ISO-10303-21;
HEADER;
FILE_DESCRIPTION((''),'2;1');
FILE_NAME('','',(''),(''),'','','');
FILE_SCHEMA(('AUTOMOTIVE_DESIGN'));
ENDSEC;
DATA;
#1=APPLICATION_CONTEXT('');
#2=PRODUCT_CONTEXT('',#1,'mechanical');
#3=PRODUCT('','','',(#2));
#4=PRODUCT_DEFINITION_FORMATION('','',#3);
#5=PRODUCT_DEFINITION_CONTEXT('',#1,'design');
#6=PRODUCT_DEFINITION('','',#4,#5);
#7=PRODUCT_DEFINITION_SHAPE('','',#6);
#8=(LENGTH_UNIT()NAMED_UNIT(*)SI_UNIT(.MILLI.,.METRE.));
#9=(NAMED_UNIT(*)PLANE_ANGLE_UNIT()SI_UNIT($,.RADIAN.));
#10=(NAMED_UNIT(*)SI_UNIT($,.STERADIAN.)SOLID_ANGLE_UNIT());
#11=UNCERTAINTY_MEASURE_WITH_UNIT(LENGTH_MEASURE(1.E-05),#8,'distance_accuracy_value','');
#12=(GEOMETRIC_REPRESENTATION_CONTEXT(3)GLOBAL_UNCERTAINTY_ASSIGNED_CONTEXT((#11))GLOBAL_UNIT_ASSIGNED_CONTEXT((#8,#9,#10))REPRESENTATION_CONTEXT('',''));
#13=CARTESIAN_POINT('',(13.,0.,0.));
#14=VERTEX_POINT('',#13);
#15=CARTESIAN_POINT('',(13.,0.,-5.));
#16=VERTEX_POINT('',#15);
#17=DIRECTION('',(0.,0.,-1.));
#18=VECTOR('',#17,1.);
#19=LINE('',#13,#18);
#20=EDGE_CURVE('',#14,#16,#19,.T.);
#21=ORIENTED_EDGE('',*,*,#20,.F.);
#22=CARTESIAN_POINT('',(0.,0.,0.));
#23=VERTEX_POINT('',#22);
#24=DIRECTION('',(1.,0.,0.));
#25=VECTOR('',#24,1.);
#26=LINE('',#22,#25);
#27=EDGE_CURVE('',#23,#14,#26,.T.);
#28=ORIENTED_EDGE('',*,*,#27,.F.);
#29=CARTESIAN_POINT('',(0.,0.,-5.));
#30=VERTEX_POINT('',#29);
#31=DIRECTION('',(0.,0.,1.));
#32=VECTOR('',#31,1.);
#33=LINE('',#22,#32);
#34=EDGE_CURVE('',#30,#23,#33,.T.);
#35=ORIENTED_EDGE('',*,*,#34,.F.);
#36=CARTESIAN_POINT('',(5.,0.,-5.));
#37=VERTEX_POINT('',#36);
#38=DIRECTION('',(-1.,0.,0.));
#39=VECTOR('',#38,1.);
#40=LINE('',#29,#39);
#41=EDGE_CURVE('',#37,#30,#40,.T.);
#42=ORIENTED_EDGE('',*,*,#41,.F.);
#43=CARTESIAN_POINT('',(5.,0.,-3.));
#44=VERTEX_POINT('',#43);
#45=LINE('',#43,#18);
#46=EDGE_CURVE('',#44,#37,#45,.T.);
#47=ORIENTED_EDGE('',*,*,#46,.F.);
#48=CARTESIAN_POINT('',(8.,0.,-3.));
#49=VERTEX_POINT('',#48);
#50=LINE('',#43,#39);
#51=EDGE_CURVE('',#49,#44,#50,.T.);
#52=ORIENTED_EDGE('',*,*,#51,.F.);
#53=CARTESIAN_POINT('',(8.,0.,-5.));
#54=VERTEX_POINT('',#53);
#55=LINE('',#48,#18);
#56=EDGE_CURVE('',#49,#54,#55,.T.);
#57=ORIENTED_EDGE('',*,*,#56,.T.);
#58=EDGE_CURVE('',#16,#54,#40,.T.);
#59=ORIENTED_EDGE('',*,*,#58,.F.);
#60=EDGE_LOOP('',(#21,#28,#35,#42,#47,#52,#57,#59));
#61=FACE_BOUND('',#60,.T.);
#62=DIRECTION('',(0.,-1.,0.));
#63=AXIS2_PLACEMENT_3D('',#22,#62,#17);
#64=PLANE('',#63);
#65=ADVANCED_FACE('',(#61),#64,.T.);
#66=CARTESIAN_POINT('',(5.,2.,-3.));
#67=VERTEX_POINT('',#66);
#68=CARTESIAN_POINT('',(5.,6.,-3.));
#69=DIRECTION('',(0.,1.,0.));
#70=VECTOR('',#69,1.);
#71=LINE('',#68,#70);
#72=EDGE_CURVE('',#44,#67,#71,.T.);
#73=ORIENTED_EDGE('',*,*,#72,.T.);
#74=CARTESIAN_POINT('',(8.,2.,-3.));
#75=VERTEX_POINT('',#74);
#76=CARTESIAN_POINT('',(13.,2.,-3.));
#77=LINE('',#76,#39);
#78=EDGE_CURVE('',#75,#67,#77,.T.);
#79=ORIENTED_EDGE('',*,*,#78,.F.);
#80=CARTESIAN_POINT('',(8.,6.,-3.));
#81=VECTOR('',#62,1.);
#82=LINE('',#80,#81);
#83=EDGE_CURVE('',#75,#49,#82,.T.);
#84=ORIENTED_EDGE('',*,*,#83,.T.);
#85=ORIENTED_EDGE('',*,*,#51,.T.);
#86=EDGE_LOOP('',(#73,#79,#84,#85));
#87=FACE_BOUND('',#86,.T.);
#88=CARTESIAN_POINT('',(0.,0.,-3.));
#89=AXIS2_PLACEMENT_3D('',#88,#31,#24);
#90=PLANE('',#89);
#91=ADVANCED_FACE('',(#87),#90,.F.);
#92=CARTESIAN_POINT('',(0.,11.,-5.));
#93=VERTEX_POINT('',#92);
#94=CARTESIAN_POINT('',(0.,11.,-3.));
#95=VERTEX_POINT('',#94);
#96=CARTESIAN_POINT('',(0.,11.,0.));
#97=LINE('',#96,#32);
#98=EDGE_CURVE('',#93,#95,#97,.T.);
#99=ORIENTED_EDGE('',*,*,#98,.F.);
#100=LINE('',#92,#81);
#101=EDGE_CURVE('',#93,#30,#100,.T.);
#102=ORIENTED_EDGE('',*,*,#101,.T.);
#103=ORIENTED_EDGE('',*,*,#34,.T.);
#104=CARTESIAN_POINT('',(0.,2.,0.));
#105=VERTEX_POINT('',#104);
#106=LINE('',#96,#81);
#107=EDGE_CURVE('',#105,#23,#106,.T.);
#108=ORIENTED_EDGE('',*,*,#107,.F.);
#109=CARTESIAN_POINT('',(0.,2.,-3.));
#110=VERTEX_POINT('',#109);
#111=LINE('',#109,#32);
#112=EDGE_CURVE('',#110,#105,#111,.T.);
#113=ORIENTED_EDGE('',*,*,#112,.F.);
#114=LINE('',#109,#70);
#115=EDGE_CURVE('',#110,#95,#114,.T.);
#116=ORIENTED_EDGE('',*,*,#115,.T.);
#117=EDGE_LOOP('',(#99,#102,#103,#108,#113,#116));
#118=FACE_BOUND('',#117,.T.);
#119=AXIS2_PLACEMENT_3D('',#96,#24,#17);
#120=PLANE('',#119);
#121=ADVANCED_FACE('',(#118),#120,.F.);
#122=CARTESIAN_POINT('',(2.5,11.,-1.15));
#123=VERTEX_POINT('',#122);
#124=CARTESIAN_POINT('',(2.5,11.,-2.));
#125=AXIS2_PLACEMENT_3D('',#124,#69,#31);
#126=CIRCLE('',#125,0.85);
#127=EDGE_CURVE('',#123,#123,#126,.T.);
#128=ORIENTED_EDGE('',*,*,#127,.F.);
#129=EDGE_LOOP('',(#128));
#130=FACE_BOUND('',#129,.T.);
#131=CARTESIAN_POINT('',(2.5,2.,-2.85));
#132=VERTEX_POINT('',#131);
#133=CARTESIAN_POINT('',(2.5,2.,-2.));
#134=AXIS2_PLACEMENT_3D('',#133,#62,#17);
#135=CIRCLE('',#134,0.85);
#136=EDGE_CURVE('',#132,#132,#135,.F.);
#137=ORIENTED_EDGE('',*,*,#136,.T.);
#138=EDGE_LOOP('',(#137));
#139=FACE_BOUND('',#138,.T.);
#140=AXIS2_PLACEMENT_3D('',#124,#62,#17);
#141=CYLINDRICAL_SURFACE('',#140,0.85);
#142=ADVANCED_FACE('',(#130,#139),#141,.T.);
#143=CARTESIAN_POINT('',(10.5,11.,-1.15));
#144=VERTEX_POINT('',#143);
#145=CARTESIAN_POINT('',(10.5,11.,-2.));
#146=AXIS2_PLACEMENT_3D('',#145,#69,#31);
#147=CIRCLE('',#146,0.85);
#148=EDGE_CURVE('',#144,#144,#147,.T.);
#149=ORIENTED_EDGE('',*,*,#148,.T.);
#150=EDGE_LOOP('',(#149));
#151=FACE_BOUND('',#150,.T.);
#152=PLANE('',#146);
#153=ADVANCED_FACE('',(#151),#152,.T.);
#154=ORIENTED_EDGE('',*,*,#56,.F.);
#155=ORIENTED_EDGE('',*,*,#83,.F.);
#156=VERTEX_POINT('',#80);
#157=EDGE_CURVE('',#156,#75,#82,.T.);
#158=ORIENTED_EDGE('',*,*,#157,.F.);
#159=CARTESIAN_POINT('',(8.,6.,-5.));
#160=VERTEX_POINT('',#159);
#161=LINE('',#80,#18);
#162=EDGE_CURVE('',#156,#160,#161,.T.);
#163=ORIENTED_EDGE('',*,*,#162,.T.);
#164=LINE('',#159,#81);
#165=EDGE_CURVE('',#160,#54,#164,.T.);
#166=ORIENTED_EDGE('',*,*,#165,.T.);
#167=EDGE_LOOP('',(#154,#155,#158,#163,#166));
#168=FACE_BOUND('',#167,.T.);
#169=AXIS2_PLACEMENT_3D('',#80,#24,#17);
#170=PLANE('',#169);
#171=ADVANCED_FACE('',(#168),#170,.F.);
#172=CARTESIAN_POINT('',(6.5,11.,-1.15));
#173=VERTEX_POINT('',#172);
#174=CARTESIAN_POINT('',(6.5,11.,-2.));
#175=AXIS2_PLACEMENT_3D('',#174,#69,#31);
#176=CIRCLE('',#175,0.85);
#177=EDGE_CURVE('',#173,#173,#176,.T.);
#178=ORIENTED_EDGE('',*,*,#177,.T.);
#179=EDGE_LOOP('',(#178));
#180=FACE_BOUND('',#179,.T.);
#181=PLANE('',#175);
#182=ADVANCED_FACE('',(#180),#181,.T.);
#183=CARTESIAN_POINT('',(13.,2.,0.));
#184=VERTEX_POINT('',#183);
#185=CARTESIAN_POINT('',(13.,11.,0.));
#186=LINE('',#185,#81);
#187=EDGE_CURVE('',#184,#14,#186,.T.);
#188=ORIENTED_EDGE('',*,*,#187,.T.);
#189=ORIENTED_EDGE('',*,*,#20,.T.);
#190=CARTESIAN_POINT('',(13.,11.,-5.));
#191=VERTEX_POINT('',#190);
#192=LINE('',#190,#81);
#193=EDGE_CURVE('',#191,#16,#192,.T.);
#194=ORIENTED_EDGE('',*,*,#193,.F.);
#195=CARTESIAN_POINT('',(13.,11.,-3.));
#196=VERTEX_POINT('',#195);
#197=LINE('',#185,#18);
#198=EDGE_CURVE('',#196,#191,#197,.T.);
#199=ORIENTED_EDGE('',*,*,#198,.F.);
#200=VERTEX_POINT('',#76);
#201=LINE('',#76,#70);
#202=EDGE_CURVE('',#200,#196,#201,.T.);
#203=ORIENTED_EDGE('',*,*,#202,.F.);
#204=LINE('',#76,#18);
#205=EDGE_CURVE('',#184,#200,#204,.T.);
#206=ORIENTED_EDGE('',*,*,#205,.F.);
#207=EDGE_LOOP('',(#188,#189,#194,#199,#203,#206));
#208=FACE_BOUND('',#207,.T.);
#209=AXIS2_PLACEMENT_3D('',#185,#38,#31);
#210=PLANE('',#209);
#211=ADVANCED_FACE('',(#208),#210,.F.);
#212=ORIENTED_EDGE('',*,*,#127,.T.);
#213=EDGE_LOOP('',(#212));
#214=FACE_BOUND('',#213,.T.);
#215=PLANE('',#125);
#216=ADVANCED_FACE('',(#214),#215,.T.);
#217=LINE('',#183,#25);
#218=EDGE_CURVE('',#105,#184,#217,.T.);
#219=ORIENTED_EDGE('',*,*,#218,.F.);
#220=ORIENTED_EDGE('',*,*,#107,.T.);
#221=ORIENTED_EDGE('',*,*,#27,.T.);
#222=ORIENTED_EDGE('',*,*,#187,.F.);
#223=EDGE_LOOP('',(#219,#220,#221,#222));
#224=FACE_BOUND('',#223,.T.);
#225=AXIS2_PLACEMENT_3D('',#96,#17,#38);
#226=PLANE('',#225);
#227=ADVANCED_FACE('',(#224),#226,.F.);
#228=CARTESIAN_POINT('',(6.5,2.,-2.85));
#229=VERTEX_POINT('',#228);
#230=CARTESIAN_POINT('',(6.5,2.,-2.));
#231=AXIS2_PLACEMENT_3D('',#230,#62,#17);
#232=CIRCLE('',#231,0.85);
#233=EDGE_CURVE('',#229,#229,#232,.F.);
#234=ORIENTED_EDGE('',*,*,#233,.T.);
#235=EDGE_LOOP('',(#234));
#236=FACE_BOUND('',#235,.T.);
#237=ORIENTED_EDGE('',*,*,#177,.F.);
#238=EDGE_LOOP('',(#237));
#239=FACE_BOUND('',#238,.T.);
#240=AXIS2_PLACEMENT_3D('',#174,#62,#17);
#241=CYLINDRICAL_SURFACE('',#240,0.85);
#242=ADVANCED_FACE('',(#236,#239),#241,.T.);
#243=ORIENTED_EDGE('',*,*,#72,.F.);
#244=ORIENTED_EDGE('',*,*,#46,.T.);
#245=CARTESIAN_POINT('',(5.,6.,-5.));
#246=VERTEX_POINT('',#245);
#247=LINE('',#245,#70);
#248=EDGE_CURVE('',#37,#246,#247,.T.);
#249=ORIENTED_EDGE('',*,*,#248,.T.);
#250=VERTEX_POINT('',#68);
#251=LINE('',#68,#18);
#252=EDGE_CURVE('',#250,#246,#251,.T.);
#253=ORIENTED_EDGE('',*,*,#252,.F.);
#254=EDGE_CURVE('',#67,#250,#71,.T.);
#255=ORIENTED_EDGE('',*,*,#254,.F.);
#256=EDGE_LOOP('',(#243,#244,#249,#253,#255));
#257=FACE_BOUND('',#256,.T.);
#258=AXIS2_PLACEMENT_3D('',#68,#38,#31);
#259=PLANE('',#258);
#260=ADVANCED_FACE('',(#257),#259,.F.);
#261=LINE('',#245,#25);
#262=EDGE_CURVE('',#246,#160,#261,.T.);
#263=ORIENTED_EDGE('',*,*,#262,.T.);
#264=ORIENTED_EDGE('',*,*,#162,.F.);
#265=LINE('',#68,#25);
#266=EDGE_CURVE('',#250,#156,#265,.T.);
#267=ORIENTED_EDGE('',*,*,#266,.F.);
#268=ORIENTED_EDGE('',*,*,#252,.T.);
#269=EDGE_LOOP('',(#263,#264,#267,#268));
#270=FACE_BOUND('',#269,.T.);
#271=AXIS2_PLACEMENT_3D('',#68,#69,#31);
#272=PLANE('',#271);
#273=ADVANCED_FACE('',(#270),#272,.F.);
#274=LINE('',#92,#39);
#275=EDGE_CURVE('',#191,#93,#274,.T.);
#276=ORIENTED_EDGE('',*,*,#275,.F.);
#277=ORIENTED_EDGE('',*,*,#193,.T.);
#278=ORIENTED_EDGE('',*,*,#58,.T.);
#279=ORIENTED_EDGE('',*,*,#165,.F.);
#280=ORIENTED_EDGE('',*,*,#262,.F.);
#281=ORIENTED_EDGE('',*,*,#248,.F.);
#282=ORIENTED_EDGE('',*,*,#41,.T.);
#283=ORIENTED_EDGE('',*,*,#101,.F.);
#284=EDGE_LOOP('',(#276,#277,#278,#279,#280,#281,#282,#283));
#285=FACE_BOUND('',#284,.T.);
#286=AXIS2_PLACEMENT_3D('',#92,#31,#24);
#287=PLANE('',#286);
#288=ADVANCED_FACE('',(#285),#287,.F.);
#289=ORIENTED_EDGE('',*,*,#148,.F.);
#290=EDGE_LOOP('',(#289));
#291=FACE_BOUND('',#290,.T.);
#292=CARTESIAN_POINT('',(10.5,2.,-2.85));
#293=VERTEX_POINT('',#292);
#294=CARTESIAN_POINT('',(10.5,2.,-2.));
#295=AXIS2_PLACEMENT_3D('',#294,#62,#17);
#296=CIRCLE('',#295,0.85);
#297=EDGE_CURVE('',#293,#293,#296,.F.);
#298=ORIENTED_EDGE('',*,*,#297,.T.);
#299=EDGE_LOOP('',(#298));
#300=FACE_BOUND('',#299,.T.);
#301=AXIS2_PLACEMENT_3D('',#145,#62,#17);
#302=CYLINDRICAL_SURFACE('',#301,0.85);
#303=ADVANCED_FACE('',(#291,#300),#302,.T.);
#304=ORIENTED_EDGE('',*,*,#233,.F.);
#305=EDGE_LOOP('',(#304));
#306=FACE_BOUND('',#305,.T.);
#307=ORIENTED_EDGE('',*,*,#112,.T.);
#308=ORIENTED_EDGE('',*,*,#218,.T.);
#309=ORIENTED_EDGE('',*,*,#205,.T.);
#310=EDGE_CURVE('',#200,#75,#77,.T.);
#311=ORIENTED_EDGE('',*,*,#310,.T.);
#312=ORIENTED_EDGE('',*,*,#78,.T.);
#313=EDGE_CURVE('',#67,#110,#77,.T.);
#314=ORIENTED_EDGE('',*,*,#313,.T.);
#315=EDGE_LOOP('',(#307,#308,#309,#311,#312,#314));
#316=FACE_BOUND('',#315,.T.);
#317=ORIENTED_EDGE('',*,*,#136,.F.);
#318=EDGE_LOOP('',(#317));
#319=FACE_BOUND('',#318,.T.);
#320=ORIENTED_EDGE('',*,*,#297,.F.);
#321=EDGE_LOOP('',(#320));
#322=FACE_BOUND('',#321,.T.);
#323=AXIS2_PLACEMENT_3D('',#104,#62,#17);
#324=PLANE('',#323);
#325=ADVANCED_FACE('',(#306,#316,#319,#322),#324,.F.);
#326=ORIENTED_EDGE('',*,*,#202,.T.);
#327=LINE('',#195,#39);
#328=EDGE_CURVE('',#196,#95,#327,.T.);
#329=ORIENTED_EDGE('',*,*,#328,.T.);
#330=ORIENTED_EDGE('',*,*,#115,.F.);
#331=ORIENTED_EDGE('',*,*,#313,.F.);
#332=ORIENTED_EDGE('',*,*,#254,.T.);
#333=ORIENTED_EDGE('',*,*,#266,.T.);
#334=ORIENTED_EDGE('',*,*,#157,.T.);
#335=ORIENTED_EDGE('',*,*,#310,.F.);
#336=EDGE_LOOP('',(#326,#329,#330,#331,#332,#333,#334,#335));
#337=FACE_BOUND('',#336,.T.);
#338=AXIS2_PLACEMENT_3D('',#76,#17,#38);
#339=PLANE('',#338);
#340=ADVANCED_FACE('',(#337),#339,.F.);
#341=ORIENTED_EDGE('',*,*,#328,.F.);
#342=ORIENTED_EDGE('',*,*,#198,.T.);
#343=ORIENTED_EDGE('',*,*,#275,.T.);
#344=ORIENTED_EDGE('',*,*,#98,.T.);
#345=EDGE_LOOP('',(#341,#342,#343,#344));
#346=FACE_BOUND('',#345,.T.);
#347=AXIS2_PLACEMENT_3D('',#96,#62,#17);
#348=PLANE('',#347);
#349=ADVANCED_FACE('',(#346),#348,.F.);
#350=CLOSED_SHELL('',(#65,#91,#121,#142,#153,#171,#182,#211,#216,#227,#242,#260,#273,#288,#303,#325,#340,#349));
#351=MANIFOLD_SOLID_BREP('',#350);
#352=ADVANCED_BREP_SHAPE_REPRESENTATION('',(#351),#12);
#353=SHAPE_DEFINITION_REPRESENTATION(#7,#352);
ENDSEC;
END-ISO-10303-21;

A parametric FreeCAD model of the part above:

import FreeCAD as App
import Part
import Sketcher
from FreeCAD import Vector

doc = App.newDocument("Part")
body = doc.addObject("PartDesign::Body", "Body")

sketch1 = body.newObject("Sketcher::SketchObject", "Sketch")
sketch1.AttachmentSupport = (doc.getObject("XZ_Plane"), [""])
sketch1.MapMode = "FlatFace"
sketch1.addGeometry([
    Part.LineSegment(Vector(0, -5, 0), Vector(0, 0, 0)),
    Part.LineSegment(Vector(0, 0, 0), Vector(13, 0, 0)),
    Part.LineSegment(Vector(13, 0, 0), Vector(13, -5, 0)),
    Part.LineSegment(Vector(13, -5, 0), Vector(0, -5, 0)),
], False)
sketch1.addConstraint([
    Sketcher.Constraint("Coincident", 0, 2, 1, 1),
    Sketcher.Constraint("Coincident", 1, 2, 2, 1),
    Sketcher.Constraint("Coincident", 2, 2, 3, 1),
    Sketcher.Constraint("Coincident", 3, 2, 0, 1),
    Sketcher.Constraint("Vertical", 0),
    Sketcher.Constraint("Horizontal", 1),
    Sketcher.Constraint("Vertical", 2),
    Sketcher.Constraint("Horizontal", 3),
    Sketcher.Constraint("Coincident", 0, 2, -1, 1),
    Sketcher.Constraint("DistanceX", 1, 1, 1, 2, 13.0),
    Sketcher.Constraint("DistanceY", 0, 1, 0, 2, 5.0),
])
pad1 = body.newObject("PartDesign::Pad", "Pad")
pad1.Profile = sketch1
pad1.Length = 11
pad1.Reversed = True

sketch2 = body.newObject("Sketcher::SketchObject", "Sketch001")
sketch2.AttachmentSupport = (doc.getObject("XZ_Plane"), [""])
sketch2.MapMode = "FlatFace"
sketch2.AttachmentOffset = App.Placement(Vector(0, 0, -11), App.Rotation())
sketch2.addGeometry([
    Part.LineSegment(Vector(0, -3, 0), Vector(0, 0, 0)),
    Part.LineSegment(Vector(0, 0, 0), Vector(13, 0, 0)),
    Part.LineSegment(Vector(13, 0, 0), Vector(13, -3, 0)),
    Part.LineSegment(Vector(13, -3, 0), Vector(0, -3, 0)),
], False)
sketch2.addConstraint([
    Sketcher.Constraint("Coincident", 0, 2, 1, 1),
    Sketcher.Constraint("Coincident", 1, 2, 2, 1),
    Sketcher.Constraint("Coincident", 2, 2, 3, 1),
    Sketcher.Constraint("Coincident", 3, 2, 0, 1),
    Sketcher.Constraint("Vertical", 0),
    Sketcher.Constraint("Horizontal", 1),
    Sketcher.Constraint("Vertical", 2),
    Sketcher.Constraint("Horizontal", 3),
    Sketcher.Constraint("Coincident", 0, 2, -1, 1),
    Sketcher.Constraint("DistanceX", 1, 1, 1, 2, 13.0),
    Sketcher.Constraint("DistanceY", 0, 1, 0, 2, 3.0),
])
pocket1 = body.newObject("PartDesign::Pocket", "Pocket")
pocket1.Profile = sketch2
pocket1.Length = 9
pocket1.Reversed = True

sketch3 = body.newObject("Sketcher::SketchObject", "Sketch002")
sketch3.AttachmentSupport = (doc.getObject("XY_Plane"), [""])
sketch3.MapMode = "FlatFace"
sketch3.AttachmentOffset = App.Placement(Vector(0, 0, -5), App.Rotation())
sketch3.addGeometry([
    Part.LineSegment(Vector(8, 6, 0), Vector(8, 0, 0)),
    Part.LineSegment(Vector(8, 0, 0), Vector(5, 0, 0)),
    Part.LineSegment(Vector(5, 0, 0), Vector(5, 6, 0)),
    Part.LineSegment(Vector(5, 6, 0), Vector(8, 6, 0)),
], False)
sketch3.addConstraint([
    Sketcher.Constraint("Coincident", 0, 2, 1, 1),
    Sketcher.Constraint("Coincident", 1, 2, 2, 1),
    Sketcher.Constraint("Coincident", 2, 2, 3, 1),
    Sketcher.Constraint("Coincident", 3, 2, 0, 1),
    Sketcher.Constraint("Vertical", 0),
    Sketcher.Constraint("Horizontal", 1),
    Sketcher.Constraint("Vertical", 2),
    Sketcher.Constraint("Horizontal", 3),
    Sketcher.Constraint("PointOnObject", 0, 2, -1),
    Sketcher.Constraint("DistanceX", 1, 2, 1, 1, 3.0),
    Sketcher.Constraint("DistanceY", 0, 2, 0, 1, 6.0),
    Sketcher.Constraint("DistanceX", -1, 1, 0, 2, 8.0),
])
pocket2 = body.newObject("PartDesign::Pocket", "Pocket001")
pocket2.Profile = sketch3
pocket2.Length = 2
pocket2.Reversed = True

sketch4 = body.newObject("Sketcher::SketchObject", "Sketch003")
sketch4.AttachmentSupport = (doc.getObject("XZ_Plane"), [""])
sketch4.MapMode = "FlatFace"
sketch4.AttachmentOffset = App.Placement(Vector(0, 0, -2), App.Rotation())
sketch4.addGeometry([
    Part.Circle(Vector(10.5, -2, 0), Vector(0, 0, 1), 0.8),
    Part.Circle(Vector(6.5, -2, 0), Vector(0, 0, 1), 0.8),
    Part.Circle(Vector(2.5, -2, 0), Vector(0, 0, 1), 0.8),
], False)
sketch4.addConstraint([
    Sketcher.Constraint("Equal", 0, 1),
    Sketcher.Constraint("Equal", 1, 2),
    Sketcher.Constraint("Horizontal", 0, 3, 1, 3),
    Sketcher.Constraint("Horizontal", 1, 3, 2, 3),
    Sketcher.Constraint("Diameter", 0, 1.7),
    Sketcher.Constraint("DistanceY", 0, 3, -1, 1, 2.0),
    Sketcher.Constraint("DistanceX", 1, 3, 0, 3, 4.0),
    Sketcher.Constraint("DistanceX", 2, 3, 1, 3, 4.0),
    Sketcher.Constraint("DistanceX", -1, 1, 0, 3, 10.5),
])
pad2 = body.newObject("PartDesign::Pad", "Pad001")
pad2.Profile = sketch4
pad2.Length = 9
pad2.Reversed = True

doc.recompute()
